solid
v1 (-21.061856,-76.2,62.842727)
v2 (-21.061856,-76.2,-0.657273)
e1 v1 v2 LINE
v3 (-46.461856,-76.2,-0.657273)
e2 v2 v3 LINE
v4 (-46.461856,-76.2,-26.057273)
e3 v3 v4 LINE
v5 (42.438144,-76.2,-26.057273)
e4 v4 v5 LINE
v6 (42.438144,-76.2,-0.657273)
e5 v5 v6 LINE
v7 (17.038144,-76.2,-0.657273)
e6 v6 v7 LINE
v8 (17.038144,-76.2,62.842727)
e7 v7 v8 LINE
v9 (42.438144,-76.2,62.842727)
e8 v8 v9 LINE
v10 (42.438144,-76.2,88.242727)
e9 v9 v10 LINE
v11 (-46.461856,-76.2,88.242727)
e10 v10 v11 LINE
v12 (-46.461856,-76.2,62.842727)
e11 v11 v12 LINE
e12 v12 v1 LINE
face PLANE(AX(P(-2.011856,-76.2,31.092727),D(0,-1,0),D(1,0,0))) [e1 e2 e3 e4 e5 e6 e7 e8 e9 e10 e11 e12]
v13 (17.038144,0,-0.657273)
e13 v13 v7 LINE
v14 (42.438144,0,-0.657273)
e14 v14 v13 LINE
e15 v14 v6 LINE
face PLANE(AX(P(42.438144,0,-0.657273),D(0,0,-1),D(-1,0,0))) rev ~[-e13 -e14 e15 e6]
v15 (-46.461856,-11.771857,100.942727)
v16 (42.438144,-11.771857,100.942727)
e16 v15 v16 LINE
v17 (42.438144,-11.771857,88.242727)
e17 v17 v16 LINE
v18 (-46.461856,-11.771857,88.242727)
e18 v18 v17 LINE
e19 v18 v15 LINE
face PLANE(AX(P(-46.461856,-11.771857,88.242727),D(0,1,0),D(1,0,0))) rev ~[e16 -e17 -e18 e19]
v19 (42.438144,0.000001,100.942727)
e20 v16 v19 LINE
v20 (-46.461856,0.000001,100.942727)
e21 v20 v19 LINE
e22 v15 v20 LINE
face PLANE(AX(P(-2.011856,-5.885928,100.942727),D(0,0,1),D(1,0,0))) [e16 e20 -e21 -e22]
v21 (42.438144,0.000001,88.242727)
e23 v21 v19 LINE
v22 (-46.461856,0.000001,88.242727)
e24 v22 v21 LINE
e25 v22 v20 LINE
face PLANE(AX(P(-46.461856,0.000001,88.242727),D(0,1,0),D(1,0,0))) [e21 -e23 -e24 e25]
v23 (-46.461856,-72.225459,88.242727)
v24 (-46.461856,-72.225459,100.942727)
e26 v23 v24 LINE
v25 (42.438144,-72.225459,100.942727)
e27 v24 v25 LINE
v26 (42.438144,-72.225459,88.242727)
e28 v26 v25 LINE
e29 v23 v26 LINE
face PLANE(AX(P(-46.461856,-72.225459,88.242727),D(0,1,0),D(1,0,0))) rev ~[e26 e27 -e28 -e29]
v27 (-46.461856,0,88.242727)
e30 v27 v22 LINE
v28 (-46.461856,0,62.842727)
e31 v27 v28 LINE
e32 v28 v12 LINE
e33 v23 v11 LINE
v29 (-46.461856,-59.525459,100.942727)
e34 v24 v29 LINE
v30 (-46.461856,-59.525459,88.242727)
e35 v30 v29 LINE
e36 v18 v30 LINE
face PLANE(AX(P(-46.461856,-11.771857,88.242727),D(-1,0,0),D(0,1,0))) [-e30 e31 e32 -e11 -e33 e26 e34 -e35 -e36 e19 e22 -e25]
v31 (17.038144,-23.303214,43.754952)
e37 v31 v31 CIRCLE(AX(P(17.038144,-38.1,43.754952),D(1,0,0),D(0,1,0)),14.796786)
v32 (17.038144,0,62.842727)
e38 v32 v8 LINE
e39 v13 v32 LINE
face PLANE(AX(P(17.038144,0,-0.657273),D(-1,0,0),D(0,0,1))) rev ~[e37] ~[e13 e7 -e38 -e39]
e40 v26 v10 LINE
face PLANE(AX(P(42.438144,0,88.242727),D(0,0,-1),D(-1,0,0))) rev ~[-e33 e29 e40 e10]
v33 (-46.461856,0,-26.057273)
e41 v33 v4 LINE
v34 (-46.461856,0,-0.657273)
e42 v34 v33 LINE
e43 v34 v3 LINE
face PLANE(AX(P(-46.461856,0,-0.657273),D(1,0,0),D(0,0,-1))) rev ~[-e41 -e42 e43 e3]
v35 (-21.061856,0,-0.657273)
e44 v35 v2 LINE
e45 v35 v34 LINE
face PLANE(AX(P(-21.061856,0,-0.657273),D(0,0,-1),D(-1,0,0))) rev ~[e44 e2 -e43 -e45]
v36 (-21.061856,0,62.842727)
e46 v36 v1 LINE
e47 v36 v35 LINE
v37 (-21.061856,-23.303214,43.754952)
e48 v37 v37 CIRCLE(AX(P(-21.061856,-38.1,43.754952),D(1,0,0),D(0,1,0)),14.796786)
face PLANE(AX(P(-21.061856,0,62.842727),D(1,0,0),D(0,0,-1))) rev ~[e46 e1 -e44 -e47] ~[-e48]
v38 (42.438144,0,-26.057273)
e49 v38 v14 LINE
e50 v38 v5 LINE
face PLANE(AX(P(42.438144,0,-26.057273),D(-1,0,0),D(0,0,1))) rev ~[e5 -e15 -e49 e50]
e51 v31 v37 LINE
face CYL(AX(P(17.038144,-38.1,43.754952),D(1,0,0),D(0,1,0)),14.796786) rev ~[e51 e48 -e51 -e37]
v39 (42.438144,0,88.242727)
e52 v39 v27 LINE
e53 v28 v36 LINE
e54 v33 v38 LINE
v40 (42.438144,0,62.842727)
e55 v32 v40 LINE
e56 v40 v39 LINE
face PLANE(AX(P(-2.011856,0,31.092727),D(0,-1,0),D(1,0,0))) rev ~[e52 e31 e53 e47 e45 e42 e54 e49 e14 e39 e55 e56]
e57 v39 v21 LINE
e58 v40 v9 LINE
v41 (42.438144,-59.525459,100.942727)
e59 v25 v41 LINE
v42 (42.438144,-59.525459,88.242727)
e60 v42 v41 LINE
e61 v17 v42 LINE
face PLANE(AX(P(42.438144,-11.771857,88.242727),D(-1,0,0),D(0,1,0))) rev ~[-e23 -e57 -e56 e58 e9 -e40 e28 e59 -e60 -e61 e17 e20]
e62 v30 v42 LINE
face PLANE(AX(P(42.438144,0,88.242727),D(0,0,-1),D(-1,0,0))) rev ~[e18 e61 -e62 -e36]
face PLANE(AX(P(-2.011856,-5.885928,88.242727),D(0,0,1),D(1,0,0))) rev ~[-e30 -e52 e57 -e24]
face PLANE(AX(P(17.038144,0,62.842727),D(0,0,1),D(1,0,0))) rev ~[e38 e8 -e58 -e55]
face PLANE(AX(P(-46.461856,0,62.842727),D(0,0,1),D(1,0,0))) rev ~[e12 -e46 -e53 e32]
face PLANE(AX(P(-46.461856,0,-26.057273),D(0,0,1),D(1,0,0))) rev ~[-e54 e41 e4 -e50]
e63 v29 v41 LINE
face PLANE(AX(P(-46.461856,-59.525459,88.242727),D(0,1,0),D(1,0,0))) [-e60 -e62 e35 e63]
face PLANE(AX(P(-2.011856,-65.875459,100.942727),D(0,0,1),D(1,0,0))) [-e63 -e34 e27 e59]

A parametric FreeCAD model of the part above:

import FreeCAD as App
import Part
import Sketcher
Q = App.Units.Quantity


def add_polygon(sketch, points):
    """Adds a closed chain of lines whose ends are joined by coincident constraints."""
    first, n = sketch.GeometryCount, len(points)
    for a, b in zip(points, points[1:] + points[:1]):
        sketch.addGeometry(Part.LineSegment(App.Vector(*a, 0), App.Vector(*b, 0)), False)
    for i in range(n):
        sketch.addConstraint(Sketcher.Constraint("Coincident", first + i, 2, first + (i + 1) % n, 1))

doc = App.newDocument("Part")
params = doc.addObject("Spreadsheet::Sheet", "Params")
for row, (alias, value) in enumerate([
    ("sketch1_width", "1 in"),
    ("sketch1_width2", "3.5 in"),
    ("sketch1_height", "2.5 in"),
    ("pad1_length", "3 in"),
    ("pocket1_length", "5 in"),
    ("sketch3_width", "3.5 in"),
    ("pad2_length", "0.5 in"),
    ("sketch4_width", "3.5 in"),
    ("sketch4_height", "0.5 in"),
    ("pad3_length", "0.5 in"),
], start=1):
    params.set(f"A{row}", alias)
    params.set(f"B{row}", "=" + value)
    params.setAlias(f"B{row}", alias)

body = doc.addObject("PartDesign::Body", "Body")

# Sketch on XZ plane
sketch1 = body.newObject("Sketcher::SketchObject", "Sketch")
sketch1.AttachmentSupport = (doc.getObject("XZ_Plane"), [""])
sketch1.MapMode = "FlatFace"
add_polygon(sketch1, [(-46, -26), (42, -26), (42, -1), (17, -1), (17, 63), (42, 63), (42, 88), (-46, 88), (-46, 63), (-21, 63), (-21, -1), (-46, -1)])  # lines 0-11
sketch1.addConstraint([
    Sketcher.Constraint("Horizontal", 0),
    Sketcher.Constraint("Vertical", 1),
    Sketcher.Constraint("Horizontal", 2),
    Sketcher.Constraint("Vertical", 3),
    Sketcher.Constraint("Horizontal", 4),
    Sketcher.Constraint("Vertical", 5),
    Sketcher.Constraint("Horizontal", 6),
    Sketcher.Constraint("Vertical", 7),
    Sketcher.Constraint("Horizontal", 8),
    Sketcher.Constraint("Vertical", 9),
    Sketcher.Constraint("Horizontal", 10),
    Sketcher.Constraint("Vertical", 11),
    Sketcher.Constraint("Horizontal", 4, 2, 7, 2),
    Sketcher.Constraint("Horizontal", 2, 2, 9, 2),
    Sketcher.Constraint("Vertical", 1, 2, 4, 2),
    Sketcher.Constraint("Vertical", 7, 2, 10, 2),
    Sketcher.Constraint("Equal", 4, 8),
    Sketcher.Constraint("Equal", 10, 1),
    Sketcher.Constraint("Equal", 1, 5),
    Sketcher.Constraint("DistanceX", 2, 2, 2, 1, Q("1 in")),
    Sketcher.Constraint("DistanceX", 0, 1, 0, 2, Q("3.5 in")),
    Sketcher.Constraint("DistanceY", 3, 1, 3, 2, Q("2.5 in")),
    Sketcher.Constraint("DistanceX", -1, 1, 0, 2, 42.438144),
    Sketcher.Constraint("DistanceY", 0, 2, -1, 1, 26.057273),
])
sketch1.setExpression("Constraints[31]", "Params.sketch1_width")
sketch1.setExpression("Constraints[32]", "Params.sketch1_width2")
sketch1.setExpression("Constraints[33]", "Params.sketch1_height")
pad1 = body.newObject("PartDesign::Pad", "Pad")
pad1.Profile = sketch1
pad1.setExpression("Length", "Params.pad1_length")

# Sketch on YZ plane
sketch2 = body.newObject("Sketcher::SketchObject", "Sketch001")
sketch2.AttachmentSupport = (doc.getObject("YZ_Plane"), [""])
sketch2.MapMode = "FlatFace"
sketch2.AttachmentOffset = App.Placement(App.Vector(0, 0, 17.038144), App.Rotation())
sketch2.addGeometry(Part.Circle(App.Vector(-38, 44, 0), App.Vector(0, 0, 1), 15), False)
sketch2.addConstraint([
    Sketcher.Constraint("DistanceX", 0, 3, -1, 1, Q("1.5 in")),
    Sketcher.Constraint("Diameter", 0, 29.593572),
    Sketcher.Constraint("DistanceY", -1, 1, 0, 3, 43.754952),
])
pocket1 = body.newObject("PartDesign::Pocket", "Pocket")
pocket1.Profile = sketch2
pocket1.setExpression("Length", "Params.pocket1_length")

# Sketch on XY plane
sketch3 = body.newObject("Sketcher::SketchObject", "Sketch002")
sketch3.AttachmentSupport = (doc.getObject("XY_Plane"), [""])
sketch3.MapMode = "FlatFace"
sketch3.AttachmentOffset = App.Placement(App.Vector(0, 0, 88.242727), App.Rotation())
add_polygon(sketch3, [(-46, 0), (-46, -12), (42, -12), (42, 0)])  # lines 0-3
sketch3.addConstraint([
    Sketcher.Constraint("Vertical", 0),
    Sketcher.Constraint("Horizontal", 1),
    Sketcher.Constraint("Vertical", 2),
    Sketcher.Constraint("Horizontal", 3),
    Sketcher.Constraint("PointOnObject", 2, 2, -1),
    Sketcher.Constraint("DistanceX", 1, 1, 1, 2, Q("3.5 in")),
    Sketcher.Constraint("DistanceY", 0, 2, 0, 1, 11.771857),
    Sketcher.Constraint("DistanceX", 0, 2, -1, 1, 46.461856),
])
sketch3.setExpression("Constraints[9]", "Params.sketch3_width")
pad2 = body.newObject("PartDesign::Pad", "Pad001")
pad2.Profile = sketch3
pad2.setExpression("Length", "Params.pad2_length")

# Sketch on XY plane
sketch4 = body.newObject("Sketcher::SketchObject", "Sketch003")
sketch4.AttachmentSupport = (doc.getObject("XY_Plane"), [""])
sketch4.MapMode = "FlatFace"
sketch4.AttachmentOffset = App.Placement(App.Vector(0, 0, 88.242727), App.Rotation())
add_polygon(sketch4, [(-46, -60), (-46, -72), (42, -72), (42, -60)])  # lines 0-3
sketch4.addConstraint([
    Sketcher.Constraint("Vertical", 0),
    Sketcher.Constraint("Horizontal", 1),
    Sketcher.Constraint("Vertical", 2),
    Sketcher.Constraint("Horizontal", 3),
    Sketcher.Constraint("DistanceX", 1, 1, 1, 2, Q("3.5 in")),
    Sketcher.Constraint("DistanceY", 0, 2, 0, 1, Q("0.5 in")),
    Sketcher.Constraint("DistanceY", 0, 2, -1, 1, 72.225459),
    Sketcher.Constraint("DistanceX", 0, 2, -1, 1, 46.461856),
])
sketch4.setExpression("Constraints[8]", "Params.sketch4_width")
sketch4.setExpression("Constraints[9]", "Params.sketch4_height")
pad3 = body.newObject("PartDesign::Pad", "Pad002")
pad3.Profile = sketch4
pad3.setExpression("Length", "Params.pad3_length")

doc.recompute()
